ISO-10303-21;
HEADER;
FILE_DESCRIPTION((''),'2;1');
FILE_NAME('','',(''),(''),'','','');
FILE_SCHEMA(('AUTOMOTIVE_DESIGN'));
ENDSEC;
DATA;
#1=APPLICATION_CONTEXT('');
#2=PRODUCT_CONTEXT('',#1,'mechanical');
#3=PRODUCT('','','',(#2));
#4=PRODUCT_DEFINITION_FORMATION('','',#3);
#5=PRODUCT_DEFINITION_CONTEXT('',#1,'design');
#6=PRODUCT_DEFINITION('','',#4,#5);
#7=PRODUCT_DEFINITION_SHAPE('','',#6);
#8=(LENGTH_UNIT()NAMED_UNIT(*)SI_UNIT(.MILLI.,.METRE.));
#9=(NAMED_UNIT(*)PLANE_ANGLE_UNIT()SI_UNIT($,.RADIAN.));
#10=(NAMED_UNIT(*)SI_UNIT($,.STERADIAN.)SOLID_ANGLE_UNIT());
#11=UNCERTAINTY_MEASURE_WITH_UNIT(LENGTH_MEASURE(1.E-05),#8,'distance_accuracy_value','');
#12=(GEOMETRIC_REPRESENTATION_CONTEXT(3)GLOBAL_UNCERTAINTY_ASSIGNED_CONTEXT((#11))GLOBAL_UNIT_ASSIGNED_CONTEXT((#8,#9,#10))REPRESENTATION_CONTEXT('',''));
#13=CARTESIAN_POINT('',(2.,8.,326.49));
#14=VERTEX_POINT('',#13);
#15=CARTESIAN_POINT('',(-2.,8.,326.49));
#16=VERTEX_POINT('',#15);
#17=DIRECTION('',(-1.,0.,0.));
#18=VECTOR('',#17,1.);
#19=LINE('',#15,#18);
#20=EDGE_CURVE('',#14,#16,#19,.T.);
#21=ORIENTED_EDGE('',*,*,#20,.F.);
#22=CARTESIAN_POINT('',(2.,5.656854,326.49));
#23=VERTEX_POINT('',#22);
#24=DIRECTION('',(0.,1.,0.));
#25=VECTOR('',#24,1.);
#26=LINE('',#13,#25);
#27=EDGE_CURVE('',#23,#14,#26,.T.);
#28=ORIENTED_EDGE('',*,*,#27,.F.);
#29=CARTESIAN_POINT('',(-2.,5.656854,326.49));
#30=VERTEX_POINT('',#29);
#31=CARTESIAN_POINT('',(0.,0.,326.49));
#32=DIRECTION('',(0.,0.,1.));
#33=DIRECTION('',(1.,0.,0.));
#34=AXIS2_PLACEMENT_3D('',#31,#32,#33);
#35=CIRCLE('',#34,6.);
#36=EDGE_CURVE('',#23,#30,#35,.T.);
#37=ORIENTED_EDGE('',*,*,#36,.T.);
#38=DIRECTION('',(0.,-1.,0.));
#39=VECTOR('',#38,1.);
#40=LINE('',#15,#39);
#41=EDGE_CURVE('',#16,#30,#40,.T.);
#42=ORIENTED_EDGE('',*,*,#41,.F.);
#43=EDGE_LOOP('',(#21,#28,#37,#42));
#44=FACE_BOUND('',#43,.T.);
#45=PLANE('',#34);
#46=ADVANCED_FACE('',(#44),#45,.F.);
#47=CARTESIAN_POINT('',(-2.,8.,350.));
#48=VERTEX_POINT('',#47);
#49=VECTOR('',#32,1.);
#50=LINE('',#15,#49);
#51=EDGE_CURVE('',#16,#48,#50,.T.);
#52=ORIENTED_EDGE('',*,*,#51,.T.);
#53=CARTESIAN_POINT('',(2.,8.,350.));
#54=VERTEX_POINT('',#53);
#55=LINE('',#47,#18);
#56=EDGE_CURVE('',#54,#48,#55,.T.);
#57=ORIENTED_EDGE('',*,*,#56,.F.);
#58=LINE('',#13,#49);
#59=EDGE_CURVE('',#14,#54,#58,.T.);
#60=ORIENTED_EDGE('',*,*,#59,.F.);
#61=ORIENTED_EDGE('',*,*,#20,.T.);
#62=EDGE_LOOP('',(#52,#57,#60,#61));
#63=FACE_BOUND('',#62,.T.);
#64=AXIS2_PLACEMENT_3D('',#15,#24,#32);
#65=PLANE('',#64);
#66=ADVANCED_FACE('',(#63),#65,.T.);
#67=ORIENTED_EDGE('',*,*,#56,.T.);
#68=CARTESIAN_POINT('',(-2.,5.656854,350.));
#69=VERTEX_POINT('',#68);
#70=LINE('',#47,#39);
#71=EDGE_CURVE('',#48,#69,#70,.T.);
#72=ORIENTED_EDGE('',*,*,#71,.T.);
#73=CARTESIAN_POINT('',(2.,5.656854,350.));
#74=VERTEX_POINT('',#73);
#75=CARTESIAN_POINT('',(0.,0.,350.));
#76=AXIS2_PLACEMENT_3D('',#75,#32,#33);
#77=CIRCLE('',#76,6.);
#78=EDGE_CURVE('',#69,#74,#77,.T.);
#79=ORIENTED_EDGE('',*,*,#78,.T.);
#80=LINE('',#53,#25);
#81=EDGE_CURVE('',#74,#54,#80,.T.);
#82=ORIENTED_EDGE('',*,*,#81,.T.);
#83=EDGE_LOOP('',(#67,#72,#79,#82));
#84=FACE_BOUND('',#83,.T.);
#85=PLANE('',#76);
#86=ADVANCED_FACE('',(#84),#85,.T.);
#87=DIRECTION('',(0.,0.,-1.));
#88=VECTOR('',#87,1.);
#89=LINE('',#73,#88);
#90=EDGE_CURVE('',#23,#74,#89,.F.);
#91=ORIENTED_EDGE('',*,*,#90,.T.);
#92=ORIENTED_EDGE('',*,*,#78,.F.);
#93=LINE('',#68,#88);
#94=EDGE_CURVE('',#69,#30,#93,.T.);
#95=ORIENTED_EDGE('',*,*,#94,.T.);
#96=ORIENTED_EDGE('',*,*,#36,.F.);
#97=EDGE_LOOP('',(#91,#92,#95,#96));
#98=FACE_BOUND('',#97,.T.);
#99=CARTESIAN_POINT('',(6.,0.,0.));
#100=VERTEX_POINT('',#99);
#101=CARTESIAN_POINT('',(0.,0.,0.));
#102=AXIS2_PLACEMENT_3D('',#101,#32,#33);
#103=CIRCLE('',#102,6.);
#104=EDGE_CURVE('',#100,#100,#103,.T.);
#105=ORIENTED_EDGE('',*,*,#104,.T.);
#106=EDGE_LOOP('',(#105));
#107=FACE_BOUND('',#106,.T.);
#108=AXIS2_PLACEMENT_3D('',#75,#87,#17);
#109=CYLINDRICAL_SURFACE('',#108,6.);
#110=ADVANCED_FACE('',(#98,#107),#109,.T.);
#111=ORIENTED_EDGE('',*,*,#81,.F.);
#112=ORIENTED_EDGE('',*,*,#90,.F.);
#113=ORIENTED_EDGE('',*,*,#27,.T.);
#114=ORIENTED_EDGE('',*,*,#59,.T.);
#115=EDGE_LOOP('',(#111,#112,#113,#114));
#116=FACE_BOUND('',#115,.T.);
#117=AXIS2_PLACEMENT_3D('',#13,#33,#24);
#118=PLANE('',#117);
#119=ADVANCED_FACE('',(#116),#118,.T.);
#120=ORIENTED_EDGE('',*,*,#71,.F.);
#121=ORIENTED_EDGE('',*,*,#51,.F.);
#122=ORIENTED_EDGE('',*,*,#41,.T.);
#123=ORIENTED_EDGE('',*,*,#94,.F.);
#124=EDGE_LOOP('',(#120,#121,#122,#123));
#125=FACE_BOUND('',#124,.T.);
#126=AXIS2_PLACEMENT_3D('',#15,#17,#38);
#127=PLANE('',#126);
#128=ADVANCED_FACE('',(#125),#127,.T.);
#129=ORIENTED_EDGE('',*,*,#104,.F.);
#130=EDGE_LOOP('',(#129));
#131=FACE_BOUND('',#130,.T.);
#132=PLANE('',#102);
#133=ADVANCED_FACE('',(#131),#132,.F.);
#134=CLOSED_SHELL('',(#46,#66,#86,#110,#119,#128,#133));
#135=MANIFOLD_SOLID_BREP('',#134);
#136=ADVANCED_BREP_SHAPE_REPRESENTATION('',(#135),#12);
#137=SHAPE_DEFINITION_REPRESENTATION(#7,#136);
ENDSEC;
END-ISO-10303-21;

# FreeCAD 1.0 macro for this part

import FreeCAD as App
import Part
import Sketcher

V = App.Vector

doc = App.newDocument("Part")
params = doc.addObject("Spreadsheet::Sheet", "Params")
for row, (alias, value) in enumerate([
    ("sketch1_diameter", "12 mm"),
    ("pad1_length", "350 mm"),
    ("sketch2_width", "4 mm"),
    ("pad2_length", "23.51 mm"),
], start=1):
    params.set(f"A{row}", alias)
    params.set(f"B{row}", "=" + value)
    params.setAlias(f"B{row}", alias)

body = doc.addObject("PartDesign::Body", "Body")

sketch1 = body.newObject("Sketcher::SketchObject", "Sketch")
sketch1.AttachmentSupport = (doc.getObject("XY_Plane"), [""])
sketch1.MapMode = "FlatFace"
sketch1.addGeometry(Part.Circle(V(0, 0, 0), V(0, 0, 1), 6), False)
sketch1.addConstraint(Sketcher.Constraint("Coincident", 0, 3, -1, 1))
sketch1.addConstraint(Sketcher.Constraint("Diameter", 0, 12.0))
sketch1.setExpression("Constraints[1]", "Params.sketch1_diameter")
pad1 = body.newObject("PartDesign::Pad", "Pad")
pad1.Profile = sketch1
pad1.setExpression("Length", "Params.pad1_length")

sketch2 = body.newObject("Sketcher::SketchObject", "Sketch001")
sketch2.AttachmentSupport = (doc.getObject("XY_Plane"), [""])
sketch2.MapMode = "FlatFace"
sketch2.AttachmentOffset = App.Placement(V(0, 0, 350), App.Rotation())
sketch2.addGeometry(Part.LineSegment(V(-2, 8, 0), V(-2, -1.160593, 0)), False)
sketch2.addGeometry(Part.LineSegment(V(-2, -1.160593, 0), V(2, -1.160593, 0)), False)
sketch2.addGeometry(Part.LineSegment(V(2, -1.160593, 0), V(2, 8, 0)), False)
sketch2.addGeometry(Part.LineSegment(V(2, 8, 0), V(-2, 8, 0)), False)
sketch2.addConstraint(Sketcher.Constraint("Coincident", 0, 2, 1, 1))
sketch2.addConstraint(Sketcher.Constraint("Coincident", 1, 2, 2, 1))
sketch2.addConstraint(Sketcher.Constraint("Coincident", 2, 2, 3, 1))
sketch2.addConstraint(Sketcher.Constraint("Coincident", 3, 2, 0, 1))
sketch2.addConstraint(Sketcher.Constraint("Vertical", 0))
sketch2.addConstraint(Sketcher.Constraint("Horizontal", 1))
sketch2.addConstraint(Sketcher.Constraint("Vertical", 2))
sketch2.addConstraint(Sketcher.Constraint("Horizontal", 3))
sketch2.addConstraint(Sketcher.Constraint("DistanceX", 1, 1, 1, 2, 4.0))
sketch2.addConstraint(Sketcher.Constraint("DistanceX", 0, 2, -1, 1, 2.0))
sketch2.addConstraint(Sketcher.Constraint("DistanceY", -1, 1, 2, 2, 8.0))
sketch2.addConstraint(Sketcher.Constraint("DistanceY", 0, 2, 0, 1, 9.160593))
sketch2.setExpression("Constraints[8]", "Params.sketch2_width")
pad2 = body.newObject("PartDesign::Pad", "Pad001")
pad2.Profile = sketch2
pad2.setExpression("Length", "Params.pad2_length")
pad2.Reversed = True

doc.recompute()
